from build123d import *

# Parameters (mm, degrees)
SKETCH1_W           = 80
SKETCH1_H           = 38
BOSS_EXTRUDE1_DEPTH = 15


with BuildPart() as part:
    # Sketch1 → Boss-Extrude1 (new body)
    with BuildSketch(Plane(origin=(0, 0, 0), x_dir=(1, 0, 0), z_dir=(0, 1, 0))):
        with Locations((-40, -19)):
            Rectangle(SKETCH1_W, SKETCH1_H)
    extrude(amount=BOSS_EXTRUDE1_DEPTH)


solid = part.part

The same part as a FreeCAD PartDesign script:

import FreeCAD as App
import Part
import Sketcher
Q = App.Units.Quantity


def add_polygon(sketch, points):
    """Adds a closed chain of lines whose ends are joined by coincident constraints."""
    first, n = sketch.GeometryCount, len(points)
    for a, b in zip(points, points[1:] + points[:1]):
        sketch.addGeometry(Part.LineSegment(App.Vector(*a, 0), App.Vector(*b, 0)), False)
    for i in range(n):
        sketch.addConstraint(Sketcher.Constraint("Coincident", first + i, 2, first + (i + 1) % n, 1))

doc = App.newDocument("Part")
params = doc.addObject("Spreadsheet::Sheet", "Params")
for row, (alias, value) in enumerate([
    ("sketch1_width", "80 mm"),
    ("sketch1_height", "38 mm"),
    ("pad1_length", "15 mm"),
], start=1):
    params.set(f"A{row}", alias)
    params.set(f"B{row}", "=" + value)
    params.setAlias(f"B{row}", alias)

body = doc.addObject("PartDesign::Body", "Body")

# Sketch on XZ plane
sketch1 = body.newObject("Sketcher::SketchObject", "Sketch")
sketch1.AttachmentSupport = (doc.getObject("XZ_Plane"), [""])
sketch1.MapMode = "FlatFace"
add_polygon(sketch1, [(-80, 0), (-80, 38), (0, 38), (0, 0)])  # lines 0-3
sketch1.addConstraint([
    Sketcher.Constraint("Vertical", 0),
    Sketcher.Constraint("Horizontal", 1),
    Sketcher.Constraint("Vertical", 2),
    Sketcher.Constraint("Horizontal", 3),
    Sketcher.Constraint("Coincident", 2, 2, -1, 1),
    Sketcher.Constraint("DistanceX", 1, 1, 1, 2, Q("80 mm")),
    Sketcher.Constraint("DistanceY", 0, 1, 0, 2, Q("38 mm")),
])
sketch1.setExpression("Constraints[9]", "Params.sketch1_width")
sketch1.setExpression("Constraints[10]", "Params.sketch1_height")
pad1 = body.newObject("PartDesign::Pad", "Pad")
pad1.Profile = sketch1
pad1.setExpression("Length", "Params.pad1_length")
pad1.Reversed = True

doc.recompute()
